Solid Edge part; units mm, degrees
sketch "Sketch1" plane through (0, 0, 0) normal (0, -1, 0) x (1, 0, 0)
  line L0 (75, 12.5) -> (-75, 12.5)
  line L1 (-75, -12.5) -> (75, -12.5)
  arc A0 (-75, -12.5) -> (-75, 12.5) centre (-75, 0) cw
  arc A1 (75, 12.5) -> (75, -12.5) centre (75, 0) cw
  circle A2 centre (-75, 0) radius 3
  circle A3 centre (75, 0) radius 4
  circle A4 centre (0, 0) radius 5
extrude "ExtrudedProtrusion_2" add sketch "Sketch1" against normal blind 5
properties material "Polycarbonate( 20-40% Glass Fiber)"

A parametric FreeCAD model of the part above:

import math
import FreeCAD as App
import Part
import Sketcher
from FreeCAD import Vector

doc = App.newDocument("Part")
body = doc.addObject("PartDesign::Body", "Body")

# Sketch on XZ plane
sketch1 = doc.addObject("Sketcher::SketchObject", "Sketch")
body.addObject(sketch1)
sketch1.AttachmentSupport = (doc.XZ_Plane, [""])
sketch1.MapMode = "FlatFace"
sketch1.addGeometry(Part.ArcOfCircle(Part.Circle(Vector(75, 0, 0), Vector(0, 0, 1), 12.5), math.radians(-90), math.radians(90)), False)
sketch1.addGeometry(Part.LineSegment(Vector(75, 12.5, 0), Vector(-75, 12.5, 0)), False)
sketch1.addGeometry(Part.ArcOfCircle(Part.Circle(Vector(-75, 0, 0), Vector(0, 0, 1), 12.5), math.radians(90), math.radians(270)), False)
sketch1.addGeometry(Part.LineSegment(Vector(-75, -12.5, 0), Vector(75, -12.5, 0)), False)
sketch1.addGeometry(Part.Circle(Vector(-75, 0, 0), Vector(0, 0, 1), 3), False)
sketch1.addGeometry(Part.Circle(Vector(0, 0, 0), Vector(0, 0, 1), 5), False)
sketch1.addGeometry(Part.Circle(Vector(75, 0, 0), Vector(0, 0, 1), 4), False)
sketch1.addConstraint(Sketcher.Constraint("Tangent", 0, 2, 1, 1))
sketch1.addConstraint(Sketcher.Constraint("Tangent", 1, 2, 2, 1))
sketch1.addConstraint(Sketcher.Constraint("Tangent", 2, 2, 3, 1))
sketch1.addConstraint(Sketcher.Constraint("Tangent", 3, 2, 0, 1))
sketch1.addConstraint(Sketcher.Constraint("Horizontal", 1))
sketch1.addConstraint(Sketcher.Constraint("Horizontal", 3))
sketch1.addConstraint(Sketcher.Constraint("Coincident", 5, 3, -1, 1))
sketch1.addConstraint(Sketcher.Constraint("Coincident", 4, 3, 2, 3))
sketch1.addConstraint(Sketcher.Constraint("Coincident", 6, 3, 0, 3))
sketch1.addConstraint(Sketcher.Constraint("Symmetric", 0, 3, 2, 3, -1, 1))
sketch1.addConstraint(Sketcher.Constraint("Diameter", 4, 6.0))
sketch1.addConstraint(Sketcher.Constraint("Diameter", 5, 10.0))
sketch1.addConstraint(Sketcher.Constraint("Diameter", 6, 8.0))
sketch1.addConstraint(Sketcher.Constraint("Radius", 0, 12.5))
sketch1.addConstraint(Sketcher.Constraint("DistanceX", 1, 2, 1, 1, 150.0))
pad1 = doc.addObject("PartDesign::Pad", "Pad")
body.addObject(pad1)
pad1.Profile = sketch1
pad1.Length = 5
pad1.Reversed = True

doc.recompute()
